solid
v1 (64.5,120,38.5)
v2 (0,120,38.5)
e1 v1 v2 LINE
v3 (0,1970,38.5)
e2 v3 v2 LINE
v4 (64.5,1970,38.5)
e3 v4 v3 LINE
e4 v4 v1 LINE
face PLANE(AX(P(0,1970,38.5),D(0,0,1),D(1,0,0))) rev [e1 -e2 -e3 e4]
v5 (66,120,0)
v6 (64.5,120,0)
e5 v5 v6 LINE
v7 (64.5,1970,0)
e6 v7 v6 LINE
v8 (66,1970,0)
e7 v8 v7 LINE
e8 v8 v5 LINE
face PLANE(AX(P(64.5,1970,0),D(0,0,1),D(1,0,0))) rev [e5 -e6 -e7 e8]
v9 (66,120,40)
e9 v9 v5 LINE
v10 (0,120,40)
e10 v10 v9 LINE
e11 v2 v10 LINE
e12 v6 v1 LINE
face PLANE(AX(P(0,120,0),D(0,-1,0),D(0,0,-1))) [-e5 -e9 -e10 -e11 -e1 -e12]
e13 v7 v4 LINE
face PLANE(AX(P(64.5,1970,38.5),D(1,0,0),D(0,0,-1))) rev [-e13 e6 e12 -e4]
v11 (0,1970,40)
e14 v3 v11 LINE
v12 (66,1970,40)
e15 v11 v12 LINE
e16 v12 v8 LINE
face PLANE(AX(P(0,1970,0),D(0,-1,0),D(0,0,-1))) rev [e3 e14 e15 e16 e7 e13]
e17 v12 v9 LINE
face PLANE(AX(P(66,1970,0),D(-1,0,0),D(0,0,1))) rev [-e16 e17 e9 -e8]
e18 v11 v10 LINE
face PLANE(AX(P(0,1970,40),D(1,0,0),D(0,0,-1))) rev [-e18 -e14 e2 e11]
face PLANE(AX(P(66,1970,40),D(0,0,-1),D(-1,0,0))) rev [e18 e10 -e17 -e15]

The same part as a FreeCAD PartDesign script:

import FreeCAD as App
import Part
import Sketcher
from FreeCAD import Vector


def add_polygon(sketch, points):
    """Adds a closed chain of lines whose ends are joined by coincident constraints."""
    first, n = sketch.GeometryCount, len(points)
    for a, b in zip(points, points[1:] + points[:1]):
        sketch.addGeometry(Part.LineSegment(App.Vector(*a, 0), App.Vector(*b, 0)), False)
    for i in range(n):
        sketch.addConstraint(Sketcher.Constraint("Coincident", first + i, 2, first + (i + 1) % n, 1))

doc = App.newDocument("Part")
body = doc.addObject("PartDesign::Body", "Body")

sketch1 = doc.addObject("Sketcher::SketchObject", "Sketch")
body.addObject(sketch1)
sketch1.AttachmentSupport = (doc.XZ_Plane, [""])
sketch1.MapMode = "FlatFace"
sketch1.AttachmentOffset = App.Placement(Vector(0, 0, -120), App.Rotation())
add_polygon(sketch1, [(0, 38.5), (0, 40), (66, 40), (66, 0), (64.5, 0), (64.5, 38.5)])
sketch1.addConstraint([
    Sketcher.Constraint("Vertical", 0),
    Sketcher.Constraint("Horizontal", 1),
    Sketcher.Constraint("Vertical", 2),
    Sketcher.Constraint("Horizontal", 3),
    Sketcher.Constraint("Vertical", 4),
    Sketcher.Constraint("Horizontal", 5),
    Sketcher.Constraint("PointOnObject", 0, 2, -2),
    Sketcher.Constraint("PointOnObject", 2, 2, -1),
    Sketcher.Constraint("Equal", 3, 0),
    Sketcher.Constraint("DistanceX", 1, 1, 1, 2, 66.0),
    Sketcher.Constraint("DistanceY", 2, 2, 2, 1, 40.0),
    Sketcher.Constraint("DistanceX", 3, 2, 3, 1, 1.5),
])
pad1 = doc.addObject("PartDesign::Pad", "Pad")
body.addObject(pad1)
pad1.Profile = sketch1
pad1.Length = 1850
pad1.Reversed = True

doc.recompute()
